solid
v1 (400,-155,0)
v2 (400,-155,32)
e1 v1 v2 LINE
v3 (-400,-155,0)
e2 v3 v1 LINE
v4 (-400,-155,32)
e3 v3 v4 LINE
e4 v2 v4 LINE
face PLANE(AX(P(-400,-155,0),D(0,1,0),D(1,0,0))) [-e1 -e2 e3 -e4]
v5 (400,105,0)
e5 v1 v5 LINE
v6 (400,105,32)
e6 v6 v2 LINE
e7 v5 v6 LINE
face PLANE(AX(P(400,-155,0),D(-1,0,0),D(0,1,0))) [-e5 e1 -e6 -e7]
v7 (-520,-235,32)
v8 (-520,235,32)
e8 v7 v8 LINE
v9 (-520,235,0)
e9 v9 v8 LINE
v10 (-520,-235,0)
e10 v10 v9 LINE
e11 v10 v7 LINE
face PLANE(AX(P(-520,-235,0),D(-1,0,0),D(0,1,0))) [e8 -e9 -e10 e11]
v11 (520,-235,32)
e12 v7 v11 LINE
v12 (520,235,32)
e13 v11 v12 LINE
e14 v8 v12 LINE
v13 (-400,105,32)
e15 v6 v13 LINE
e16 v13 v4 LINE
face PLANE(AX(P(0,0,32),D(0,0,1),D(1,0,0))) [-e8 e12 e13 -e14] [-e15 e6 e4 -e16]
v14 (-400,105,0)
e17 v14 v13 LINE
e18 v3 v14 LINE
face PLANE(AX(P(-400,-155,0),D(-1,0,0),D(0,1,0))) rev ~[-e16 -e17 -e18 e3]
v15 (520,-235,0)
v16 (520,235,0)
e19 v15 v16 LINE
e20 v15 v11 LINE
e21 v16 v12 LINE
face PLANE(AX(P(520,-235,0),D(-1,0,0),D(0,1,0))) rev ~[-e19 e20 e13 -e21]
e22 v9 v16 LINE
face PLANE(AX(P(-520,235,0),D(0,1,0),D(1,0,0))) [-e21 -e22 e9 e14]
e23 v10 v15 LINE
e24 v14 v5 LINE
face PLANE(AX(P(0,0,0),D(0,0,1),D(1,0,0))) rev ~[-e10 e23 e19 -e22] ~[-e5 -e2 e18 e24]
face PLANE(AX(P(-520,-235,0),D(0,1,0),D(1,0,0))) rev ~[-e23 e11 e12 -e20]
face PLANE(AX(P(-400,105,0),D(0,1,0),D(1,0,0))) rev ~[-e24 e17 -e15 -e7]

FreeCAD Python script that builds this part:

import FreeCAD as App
import Part
import Sketcher

V = App.Vector

doc = App.newDocument("Part")
body = doc.addObject("PartDesign::Body", "Body")

sketch1 = body.newObject("Sketcher::SketchObject", "Sketch")
sketch1.AttachmentSupport = (doc.getObject("XY_Plane"), [""])
sketch1.MapMode = "FlatFace"
sketch1.addGeometry([
    Part.LineSegment(V(-520, 235, 0), V(-520, -235, 0)),
    Part.LineSegment(V(-520, -235, 0), V(520, -235, 0)),
    Part.LineSegment(V(520, -235, 0), V(520, 235, 0)),
    Part.LineSegment(V(520, 235, 0), V(-520, 235, 0)),
], False)
sketch1.addConstraint([
    Sketcher.Constraint("Coincident", 0, 2, 1, 1),
    Sketcher.Constraint("Coincident", 1, 2, 2, 1),
    Sketcher.Constraint("Coincident", 2, 2, 3, 1),
    Sketcher.Constraint("Coincident", 3, 2, 0, 1),
    Sketcher.Constraint("Vertical", 0),
    Sketcher.Constraint("Horizontal", 1),
    Sketcher.Constraint("Vertical", 2),
    Sketcher.Constraint("Horizontal", 3),
    Sketcher.Constraint("Symmetric", 0, 2, 2, 2, -1, 1),
    Sketcher.Constraint("DistanceX", 1, 1, 1, 2, 1040.0),
    Sketcher.Constraint("DistanceY", 0, 2, 0, 1, 470.0),
])
pad1 = body.newObject("PartDesign::Pad", "Pad")
pad1.Profile = sketch1
pad1.Length = 32

sketch2 = body.newObject("Sketcher::SketchObject", "Sketch001")
sketch2.AttachmentSupport = (doc.getObject("XY_Plane"), [""])
sketch2.MapMode = "FlatFace"
sketch2.addGeometry([
    Part.LineSegment(V(-400, 105, 0), V(-400, -155, 0)),
    Part.LineSegment(V(-400, -155, 0), V(400, -155, 0)),
    Part.LineSegment(V(400, -155, 0), V(400, 105, 0)),
    Part.LineSegment(V(400, 105, 0), V(-400, 105, 0)),
], False)
sketch2.addConstraint([
    Sketcher.Constraint("Coincident", 0, 2, 1, 1),
    Sketcher.Constraint("Coincident", 1, 2, 2, 1),
    Sketcher.Constraint("Coincident", 2, 2, 3, 1),
    Sketcher.Constraint("Coincident", 3, 2, 0, 1),
    Sketcher.Constraint("Vertical", 0),
    Sketcher.Constraint("Horizontal", 1),
    Sketcher.Constraint("Vertical", 2),
    Sketcher.Constraint("Horizontal", 3),
    Sketcher.Constraint("DistanceX", 1, 1, 1, 2, 800.0),
    Sketcher.Constraint("DistanceY", 0, 2, 0, 1, 260.0),
    Sketcher.Constraint("DistanceX", 0, 2, -1, 1, 400.0),
    Sketcher.Constraint("DistanceY", 0, 2, -1, 1, 155.0),
])
pocket1 = body.newObject("PartDesign::Pocket", "Pocket")
pocket1.Profile = sketch2
pocket1.Type = "ThroughAll"
pocket1.Reversed = True

doc.recompute()
